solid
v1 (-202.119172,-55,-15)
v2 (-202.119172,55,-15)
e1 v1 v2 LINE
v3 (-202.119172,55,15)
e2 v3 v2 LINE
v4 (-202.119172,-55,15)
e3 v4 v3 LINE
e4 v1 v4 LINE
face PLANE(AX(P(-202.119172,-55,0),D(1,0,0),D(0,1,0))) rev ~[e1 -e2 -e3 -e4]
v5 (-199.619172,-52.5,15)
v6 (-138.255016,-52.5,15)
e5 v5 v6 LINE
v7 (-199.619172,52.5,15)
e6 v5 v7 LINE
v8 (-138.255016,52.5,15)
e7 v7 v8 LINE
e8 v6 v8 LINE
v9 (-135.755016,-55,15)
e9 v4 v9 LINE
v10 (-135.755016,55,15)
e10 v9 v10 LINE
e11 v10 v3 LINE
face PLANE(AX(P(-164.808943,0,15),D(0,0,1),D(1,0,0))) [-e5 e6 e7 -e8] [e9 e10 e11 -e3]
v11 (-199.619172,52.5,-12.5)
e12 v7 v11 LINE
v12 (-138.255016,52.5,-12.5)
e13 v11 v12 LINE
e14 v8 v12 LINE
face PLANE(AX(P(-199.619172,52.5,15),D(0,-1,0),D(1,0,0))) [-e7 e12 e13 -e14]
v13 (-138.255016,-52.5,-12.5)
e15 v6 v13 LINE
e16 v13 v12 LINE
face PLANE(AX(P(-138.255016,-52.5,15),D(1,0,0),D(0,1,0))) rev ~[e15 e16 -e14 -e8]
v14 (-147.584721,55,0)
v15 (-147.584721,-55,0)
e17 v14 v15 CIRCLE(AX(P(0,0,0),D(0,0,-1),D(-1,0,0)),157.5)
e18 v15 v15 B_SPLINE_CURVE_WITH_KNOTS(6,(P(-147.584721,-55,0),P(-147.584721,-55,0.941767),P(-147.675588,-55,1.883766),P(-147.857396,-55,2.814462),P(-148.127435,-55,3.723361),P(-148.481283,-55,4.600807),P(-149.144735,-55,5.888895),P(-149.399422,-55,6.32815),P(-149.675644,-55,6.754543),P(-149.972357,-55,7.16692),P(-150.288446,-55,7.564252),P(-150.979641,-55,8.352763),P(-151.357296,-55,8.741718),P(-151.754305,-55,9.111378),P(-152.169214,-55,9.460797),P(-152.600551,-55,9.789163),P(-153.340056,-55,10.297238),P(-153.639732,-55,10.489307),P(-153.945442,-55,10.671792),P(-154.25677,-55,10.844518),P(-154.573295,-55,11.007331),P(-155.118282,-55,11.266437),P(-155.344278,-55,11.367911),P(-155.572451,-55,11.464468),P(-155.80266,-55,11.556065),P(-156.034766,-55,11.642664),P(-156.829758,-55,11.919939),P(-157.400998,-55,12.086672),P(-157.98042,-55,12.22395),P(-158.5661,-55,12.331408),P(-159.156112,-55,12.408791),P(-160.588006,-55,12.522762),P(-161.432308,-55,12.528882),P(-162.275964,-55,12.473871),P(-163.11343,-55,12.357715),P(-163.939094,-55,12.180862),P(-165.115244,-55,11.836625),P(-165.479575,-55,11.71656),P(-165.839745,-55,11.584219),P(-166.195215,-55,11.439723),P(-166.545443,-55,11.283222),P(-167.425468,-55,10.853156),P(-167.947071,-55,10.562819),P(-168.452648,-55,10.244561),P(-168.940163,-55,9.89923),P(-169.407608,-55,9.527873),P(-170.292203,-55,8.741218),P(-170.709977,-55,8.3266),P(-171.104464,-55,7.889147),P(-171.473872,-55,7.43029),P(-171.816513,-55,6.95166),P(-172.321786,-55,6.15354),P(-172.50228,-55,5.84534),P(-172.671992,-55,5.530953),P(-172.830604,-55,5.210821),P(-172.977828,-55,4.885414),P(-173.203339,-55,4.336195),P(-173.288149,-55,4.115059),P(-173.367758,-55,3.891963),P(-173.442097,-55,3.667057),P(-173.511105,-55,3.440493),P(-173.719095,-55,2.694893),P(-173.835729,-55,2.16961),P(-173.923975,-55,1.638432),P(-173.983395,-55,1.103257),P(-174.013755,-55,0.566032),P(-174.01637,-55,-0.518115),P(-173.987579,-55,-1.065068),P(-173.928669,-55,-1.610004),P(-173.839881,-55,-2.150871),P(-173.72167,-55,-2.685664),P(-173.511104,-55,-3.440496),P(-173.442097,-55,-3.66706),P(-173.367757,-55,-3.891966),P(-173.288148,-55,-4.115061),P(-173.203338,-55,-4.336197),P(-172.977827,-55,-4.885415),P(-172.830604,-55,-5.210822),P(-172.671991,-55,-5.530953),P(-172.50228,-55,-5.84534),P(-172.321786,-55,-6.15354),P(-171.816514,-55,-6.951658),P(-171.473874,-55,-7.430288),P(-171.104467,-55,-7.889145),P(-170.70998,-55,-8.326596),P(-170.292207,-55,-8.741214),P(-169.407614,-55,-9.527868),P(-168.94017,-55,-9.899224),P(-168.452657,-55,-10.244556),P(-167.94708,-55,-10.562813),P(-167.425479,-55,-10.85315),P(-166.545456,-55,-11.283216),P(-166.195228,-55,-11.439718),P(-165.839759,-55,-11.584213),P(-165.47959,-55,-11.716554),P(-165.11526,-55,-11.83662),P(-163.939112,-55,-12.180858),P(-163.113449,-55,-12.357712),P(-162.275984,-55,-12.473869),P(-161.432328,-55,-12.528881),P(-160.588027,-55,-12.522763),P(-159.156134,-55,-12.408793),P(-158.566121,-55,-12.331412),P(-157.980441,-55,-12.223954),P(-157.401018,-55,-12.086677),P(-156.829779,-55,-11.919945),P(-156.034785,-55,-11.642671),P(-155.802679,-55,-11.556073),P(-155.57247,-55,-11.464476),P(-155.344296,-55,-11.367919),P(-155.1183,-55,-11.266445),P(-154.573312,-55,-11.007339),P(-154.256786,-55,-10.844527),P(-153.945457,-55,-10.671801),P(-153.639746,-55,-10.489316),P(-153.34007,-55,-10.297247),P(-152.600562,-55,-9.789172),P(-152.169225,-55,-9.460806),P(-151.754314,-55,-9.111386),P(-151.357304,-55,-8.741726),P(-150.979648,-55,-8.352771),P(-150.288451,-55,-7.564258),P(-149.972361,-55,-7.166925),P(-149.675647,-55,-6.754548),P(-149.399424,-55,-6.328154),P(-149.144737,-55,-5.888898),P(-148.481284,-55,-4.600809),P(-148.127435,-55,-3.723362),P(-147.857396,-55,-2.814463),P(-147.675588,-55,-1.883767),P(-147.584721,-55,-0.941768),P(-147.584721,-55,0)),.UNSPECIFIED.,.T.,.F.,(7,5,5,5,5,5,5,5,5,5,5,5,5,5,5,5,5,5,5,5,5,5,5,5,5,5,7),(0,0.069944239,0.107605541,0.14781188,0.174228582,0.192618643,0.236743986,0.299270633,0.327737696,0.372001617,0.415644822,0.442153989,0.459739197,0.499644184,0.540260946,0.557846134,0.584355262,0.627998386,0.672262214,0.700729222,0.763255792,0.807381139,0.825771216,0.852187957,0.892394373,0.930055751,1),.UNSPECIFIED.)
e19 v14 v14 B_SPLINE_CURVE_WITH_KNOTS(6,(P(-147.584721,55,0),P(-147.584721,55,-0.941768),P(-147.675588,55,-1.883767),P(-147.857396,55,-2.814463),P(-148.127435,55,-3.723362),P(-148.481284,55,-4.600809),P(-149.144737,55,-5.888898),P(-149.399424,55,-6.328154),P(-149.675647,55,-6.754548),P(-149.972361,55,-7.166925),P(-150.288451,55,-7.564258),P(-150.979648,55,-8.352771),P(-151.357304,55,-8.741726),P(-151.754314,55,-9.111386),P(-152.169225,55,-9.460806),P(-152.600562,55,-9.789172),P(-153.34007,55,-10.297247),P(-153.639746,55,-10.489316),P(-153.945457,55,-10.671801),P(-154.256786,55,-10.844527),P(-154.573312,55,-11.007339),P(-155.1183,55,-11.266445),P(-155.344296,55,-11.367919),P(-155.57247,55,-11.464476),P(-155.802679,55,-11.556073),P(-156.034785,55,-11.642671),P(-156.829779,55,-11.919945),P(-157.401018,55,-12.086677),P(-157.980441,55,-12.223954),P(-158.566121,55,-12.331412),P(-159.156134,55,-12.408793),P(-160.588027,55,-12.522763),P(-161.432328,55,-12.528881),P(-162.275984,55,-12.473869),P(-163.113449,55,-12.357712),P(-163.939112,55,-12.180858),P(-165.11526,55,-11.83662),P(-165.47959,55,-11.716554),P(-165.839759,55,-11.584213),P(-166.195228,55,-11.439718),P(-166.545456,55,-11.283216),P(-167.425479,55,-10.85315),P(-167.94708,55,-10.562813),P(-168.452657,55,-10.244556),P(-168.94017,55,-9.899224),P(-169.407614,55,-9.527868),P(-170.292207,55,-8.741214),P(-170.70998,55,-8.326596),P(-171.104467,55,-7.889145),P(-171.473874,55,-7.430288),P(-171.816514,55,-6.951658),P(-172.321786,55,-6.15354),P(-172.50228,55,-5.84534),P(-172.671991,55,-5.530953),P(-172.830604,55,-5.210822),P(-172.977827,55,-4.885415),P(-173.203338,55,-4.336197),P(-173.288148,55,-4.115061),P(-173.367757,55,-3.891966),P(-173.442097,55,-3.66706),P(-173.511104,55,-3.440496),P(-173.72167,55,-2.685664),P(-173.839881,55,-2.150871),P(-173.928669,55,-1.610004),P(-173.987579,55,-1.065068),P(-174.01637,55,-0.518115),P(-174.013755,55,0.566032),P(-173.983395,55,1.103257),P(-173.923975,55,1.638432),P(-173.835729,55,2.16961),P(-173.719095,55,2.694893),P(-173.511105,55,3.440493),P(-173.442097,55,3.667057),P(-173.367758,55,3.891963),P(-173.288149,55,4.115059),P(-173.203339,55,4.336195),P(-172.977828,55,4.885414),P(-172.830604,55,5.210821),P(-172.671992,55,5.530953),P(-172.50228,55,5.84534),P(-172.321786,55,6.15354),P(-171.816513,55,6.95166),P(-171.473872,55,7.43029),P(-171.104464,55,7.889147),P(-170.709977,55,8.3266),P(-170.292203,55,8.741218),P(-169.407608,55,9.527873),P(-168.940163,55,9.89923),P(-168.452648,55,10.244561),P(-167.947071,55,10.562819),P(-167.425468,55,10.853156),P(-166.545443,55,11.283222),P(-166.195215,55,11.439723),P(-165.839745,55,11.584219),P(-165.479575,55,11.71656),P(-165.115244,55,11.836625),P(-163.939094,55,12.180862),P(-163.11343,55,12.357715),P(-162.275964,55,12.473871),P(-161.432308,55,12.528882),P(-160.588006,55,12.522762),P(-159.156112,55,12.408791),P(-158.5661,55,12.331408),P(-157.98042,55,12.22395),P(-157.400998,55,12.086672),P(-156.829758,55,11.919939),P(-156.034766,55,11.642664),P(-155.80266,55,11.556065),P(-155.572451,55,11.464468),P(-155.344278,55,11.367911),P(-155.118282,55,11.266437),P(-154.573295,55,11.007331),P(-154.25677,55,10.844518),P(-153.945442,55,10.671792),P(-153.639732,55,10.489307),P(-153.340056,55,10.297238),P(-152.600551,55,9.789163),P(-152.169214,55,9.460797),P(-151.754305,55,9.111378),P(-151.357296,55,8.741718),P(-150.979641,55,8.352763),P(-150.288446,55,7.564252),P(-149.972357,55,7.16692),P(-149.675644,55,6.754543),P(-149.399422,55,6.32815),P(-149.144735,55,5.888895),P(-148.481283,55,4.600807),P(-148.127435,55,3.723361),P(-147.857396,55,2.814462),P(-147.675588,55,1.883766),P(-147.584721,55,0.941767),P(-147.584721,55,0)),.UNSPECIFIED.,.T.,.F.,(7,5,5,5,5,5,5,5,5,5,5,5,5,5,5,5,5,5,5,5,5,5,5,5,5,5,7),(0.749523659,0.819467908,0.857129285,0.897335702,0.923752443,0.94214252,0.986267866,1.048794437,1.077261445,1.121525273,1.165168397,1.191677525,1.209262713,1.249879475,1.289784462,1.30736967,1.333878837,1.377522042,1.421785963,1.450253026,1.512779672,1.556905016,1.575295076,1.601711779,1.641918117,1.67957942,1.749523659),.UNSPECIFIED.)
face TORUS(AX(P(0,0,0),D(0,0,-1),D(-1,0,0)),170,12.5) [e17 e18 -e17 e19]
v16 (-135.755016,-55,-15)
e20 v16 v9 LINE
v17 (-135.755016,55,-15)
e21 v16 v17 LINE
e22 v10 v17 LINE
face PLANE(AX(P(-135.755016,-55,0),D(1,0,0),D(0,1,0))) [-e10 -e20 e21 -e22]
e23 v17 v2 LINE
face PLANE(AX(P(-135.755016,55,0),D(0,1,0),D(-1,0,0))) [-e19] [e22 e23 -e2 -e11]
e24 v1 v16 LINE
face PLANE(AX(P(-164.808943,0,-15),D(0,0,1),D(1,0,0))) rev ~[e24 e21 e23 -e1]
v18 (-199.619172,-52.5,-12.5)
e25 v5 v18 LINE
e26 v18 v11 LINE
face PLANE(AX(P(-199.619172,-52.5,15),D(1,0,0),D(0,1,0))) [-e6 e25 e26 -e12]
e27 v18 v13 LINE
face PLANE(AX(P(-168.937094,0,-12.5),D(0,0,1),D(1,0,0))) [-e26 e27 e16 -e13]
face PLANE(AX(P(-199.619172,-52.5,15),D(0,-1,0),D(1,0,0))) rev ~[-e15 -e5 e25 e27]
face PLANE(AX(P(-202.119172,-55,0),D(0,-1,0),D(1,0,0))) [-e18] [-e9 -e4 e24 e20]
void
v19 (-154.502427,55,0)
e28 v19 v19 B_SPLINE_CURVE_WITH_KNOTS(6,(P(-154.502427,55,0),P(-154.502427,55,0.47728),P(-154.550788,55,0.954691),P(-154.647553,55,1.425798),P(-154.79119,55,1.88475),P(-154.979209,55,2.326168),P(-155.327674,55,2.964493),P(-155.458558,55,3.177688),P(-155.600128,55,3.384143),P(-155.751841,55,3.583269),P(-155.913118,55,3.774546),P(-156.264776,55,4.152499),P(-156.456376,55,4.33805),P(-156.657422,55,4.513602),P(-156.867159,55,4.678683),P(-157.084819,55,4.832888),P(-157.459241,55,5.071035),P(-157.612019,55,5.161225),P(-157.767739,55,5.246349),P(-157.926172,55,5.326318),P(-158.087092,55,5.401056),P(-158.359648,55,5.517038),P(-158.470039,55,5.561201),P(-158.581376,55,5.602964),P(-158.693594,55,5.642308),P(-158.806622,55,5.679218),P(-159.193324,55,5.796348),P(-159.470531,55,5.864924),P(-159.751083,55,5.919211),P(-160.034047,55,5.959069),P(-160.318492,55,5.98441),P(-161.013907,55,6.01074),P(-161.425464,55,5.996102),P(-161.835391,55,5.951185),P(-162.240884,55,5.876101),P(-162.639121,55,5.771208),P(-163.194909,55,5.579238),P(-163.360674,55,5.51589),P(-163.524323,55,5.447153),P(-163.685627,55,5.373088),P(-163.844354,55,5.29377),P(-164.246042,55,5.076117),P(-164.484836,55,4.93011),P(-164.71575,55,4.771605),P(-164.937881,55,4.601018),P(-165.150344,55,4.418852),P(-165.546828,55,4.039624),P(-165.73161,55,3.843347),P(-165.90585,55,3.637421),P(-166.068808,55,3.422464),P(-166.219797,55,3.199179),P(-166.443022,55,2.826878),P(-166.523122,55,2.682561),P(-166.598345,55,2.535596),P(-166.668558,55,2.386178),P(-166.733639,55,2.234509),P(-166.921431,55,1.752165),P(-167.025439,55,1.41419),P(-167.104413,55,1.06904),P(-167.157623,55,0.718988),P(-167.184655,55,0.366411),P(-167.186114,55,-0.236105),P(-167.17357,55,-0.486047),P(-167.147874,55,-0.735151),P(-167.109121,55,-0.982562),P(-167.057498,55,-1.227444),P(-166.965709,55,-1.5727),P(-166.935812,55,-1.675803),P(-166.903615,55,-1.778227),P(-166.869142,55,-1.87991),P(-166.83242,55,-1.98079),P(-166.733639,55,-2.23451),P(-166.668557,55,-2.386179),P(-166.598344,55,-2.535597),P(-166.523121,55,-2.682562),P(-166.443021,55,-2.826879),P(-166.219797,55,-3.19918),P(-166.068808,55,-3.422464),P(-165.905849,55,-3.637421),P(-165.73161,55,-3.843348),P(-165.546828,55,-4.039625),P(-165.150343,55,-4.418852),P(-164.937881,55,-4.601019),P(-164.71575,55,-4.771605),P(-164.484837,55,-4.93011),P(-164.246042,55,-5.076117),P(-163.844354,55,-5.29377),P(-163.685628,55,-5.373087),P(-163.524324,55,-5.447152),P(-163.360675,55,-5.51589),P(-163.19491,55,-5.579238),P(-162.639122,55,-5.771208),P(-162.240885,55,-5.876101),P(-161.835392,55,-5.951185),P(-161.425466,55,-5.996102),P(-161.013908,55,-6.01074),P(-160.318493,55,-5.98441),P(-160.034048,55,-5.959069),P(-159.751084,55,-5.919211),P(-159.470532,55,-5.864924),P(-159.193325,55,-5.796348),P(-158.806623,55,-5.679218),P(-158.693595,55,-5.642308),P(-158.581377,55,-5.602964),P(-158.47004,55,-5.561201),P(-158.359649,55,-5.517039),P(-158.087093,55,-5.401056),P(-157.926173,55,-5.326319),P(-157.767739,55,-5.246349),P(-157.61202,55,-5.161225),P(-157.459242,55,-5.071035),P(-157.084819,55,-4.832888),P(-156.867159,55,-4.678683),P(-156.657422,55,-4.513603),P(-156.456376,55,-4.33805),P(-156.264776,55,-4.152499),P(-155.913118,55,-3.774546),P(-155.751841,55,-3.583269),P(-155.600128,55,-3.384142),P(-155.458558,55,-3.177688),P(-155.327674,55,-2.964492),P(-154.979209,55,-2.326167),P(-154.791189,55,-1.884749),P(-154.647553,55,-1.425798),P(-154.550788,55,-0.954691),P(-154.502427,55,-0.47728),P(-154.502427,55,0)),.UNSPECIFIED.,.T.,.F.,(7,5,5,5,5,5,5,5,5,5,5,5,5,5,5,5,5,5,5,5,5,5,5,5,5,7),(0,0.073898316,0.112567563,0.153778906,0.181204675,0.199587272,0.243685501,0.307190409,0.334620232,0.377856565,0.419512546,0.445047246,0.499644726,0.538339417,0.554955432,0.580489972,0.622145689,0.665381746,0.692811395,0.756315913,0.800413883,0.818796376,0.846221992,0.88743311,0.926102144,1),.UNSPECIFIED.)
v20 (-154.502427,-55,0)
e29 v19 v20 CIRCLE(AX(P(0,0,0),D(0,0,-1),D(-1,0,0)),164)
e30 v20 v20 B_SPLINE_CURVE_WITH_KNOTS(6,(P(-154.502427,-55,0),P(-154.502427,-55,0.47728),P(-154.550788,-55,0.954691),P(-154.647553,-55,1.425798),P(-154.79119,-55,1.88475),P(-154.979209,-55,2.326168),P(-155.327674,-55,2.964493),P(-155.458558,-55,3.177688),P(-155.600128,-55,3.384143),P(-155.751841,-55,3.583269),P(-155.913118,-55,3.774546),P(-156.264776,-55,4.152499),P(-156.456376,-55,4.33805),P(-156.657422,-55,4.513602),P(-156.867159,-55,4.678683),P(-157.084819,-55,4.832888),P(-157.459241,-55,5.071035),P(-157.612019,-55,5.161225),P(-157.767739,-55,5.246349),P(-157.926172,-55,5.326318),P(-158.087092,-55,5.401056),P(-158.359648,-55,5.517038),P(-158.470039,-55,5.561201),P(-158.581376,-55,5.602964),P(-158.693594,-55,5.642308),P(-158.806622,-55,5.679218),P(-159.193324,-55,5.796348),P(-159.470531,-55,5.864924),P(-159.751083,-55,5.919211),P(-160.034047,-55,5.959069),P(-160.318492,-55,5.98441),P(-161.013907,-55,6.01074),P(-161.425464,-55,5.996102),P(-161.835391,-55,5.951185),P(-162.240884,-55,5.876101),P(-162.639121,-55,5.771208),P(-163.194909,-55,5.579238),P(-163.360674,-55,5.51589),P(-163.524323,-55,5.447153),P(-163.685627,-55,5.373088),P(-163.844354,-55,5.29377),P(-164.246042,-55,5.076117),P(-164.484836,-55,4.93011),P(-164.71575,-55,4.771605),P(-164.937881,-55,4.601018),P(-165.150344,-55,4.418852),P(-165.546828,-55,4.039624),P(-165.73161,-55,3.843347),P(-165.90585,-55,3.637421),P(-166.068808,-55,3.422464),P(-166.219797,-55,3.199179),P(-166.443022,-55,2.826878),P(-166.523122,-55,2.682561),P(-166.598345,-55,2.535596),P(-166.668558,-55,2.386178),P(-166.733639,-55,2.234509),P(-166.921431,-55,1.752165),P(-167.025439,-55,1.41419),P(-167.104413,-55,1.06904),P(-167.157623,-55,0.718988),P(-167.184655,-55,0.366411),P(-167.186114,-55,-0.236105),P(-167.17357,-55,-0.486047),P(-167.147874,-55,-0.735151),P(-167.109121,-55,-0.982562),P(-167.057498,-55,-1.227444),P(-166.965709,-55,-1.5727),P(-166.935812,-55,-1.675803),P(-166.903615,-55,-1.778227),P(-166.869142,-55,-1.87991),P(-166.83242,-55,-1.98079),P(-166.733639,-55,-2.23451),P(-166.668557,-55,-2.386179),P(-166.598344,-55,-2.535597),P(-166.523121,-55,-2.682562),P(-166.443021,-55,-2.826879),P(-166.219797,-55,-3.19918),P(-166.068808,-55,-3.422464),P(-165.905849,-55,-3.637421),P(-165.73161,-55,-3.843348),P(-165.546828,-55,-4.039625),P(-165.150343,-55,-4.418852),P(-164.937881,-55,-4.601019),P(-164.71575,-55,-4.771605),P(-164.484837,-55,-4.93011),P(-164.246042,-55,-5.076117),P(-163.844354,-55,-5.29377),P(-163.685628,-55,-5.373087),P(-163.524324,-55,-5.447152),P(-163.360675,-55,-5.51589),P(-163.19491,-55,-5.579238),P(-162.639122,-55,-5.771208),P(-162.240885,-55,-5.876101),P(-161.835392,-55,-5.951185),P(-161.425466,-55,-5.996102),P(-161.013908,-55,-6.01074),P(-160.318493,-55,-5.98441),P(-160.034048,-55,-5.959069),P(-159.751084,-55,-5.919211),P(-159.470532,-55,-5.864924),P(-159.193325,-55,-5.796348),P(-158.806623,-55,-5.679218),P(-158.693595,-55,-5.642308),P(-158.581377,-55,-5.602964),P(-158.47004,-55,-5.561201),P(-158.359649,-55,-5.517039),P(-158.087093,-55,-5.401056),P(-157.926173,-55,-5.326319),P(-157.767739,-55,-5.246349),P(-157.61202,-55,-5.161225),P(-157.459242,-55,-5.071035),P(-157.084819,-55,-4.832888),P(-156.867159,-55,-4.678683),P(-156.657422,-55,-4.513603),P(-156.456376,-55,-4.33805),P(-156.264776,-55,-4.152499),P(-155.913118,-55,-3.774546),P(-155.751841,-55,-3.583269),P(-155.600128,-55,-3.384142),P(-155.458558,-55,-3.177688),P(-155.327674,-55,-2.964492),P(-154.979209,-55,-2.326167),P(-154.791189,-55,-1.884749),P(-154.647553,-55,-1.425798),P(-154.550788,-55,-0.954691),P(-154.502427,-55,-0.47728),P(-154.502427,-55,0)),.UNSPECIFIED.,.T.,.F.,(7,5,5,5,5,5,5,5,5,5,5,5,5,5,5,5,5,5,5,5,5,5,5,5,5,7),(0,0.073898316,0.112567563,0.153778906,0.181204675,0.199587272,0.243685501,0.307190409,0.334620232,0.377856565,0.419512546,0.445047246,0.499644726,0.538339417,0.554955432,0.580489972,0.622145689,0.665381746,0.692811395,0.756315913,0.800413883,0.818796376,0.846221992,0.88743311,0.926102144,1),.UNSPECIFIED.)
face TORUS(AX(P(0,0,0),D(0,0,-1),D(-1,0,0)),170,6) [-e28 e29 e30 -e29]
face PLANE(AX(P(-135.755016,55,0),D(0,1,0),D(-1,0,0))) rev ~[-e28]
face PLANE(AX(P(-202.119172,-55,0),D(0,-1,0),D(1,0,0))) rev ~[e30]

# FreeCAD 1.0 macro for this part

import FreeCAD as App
import Part
import Sketcher
Q = App.Units.Quantity


def add_polygon(sketch, points):
    """Adds a closed chain of lines whose ends are joined by coincident constraints."""
    first, n = sketch.GeometryCount, len(points)
    for a, b in zip(points, points[1:] + points[:1]):
        sketch.addGeometry(Part.LineSegment(App.Vector(*a, 0), App.Vector(*b, 0)), False)
    for i in range(n):
        sketch.addConstraint(Sketcher.Constraint("Coincident", first + i, 2, first + (i + 1) % n, 1))

doc = App.newDocument("Part")
body = doc.addObject("PartDesign::Body", "Body")

# Sketch on XZ plane
sketch1 = body.newObject("Sketcher::SketchObject", "Sketch")
sketch1.AttachmentSupport = (doc.getObject("XZ_Plane"), [""])
sketch1.MapMode = "FlatFace"
sketch1.addGeometry([
    Part.Circle(App.Vector(-170, 0, 0), App.Vector(0, 0, 1), 12),
    Part.Circle(App.Vector(-170, 0, 0), App.Vector(0, 0, 1), 6),
], False)
sketch1.addConstraint([
    Sketcher.Constraint("Coincident", 1, 3, 0, 3),
    Sketcher.Constraint("PointOnObject", 0, 3, -1),
    Sketcher.Constraint("Diameter", 0, Q("25 mm")),
    Sketcher.Constraint("Diameter", 1, Q("12 mm")),
    Sketcher.Constraint("DistanceX", 0, 3, -1, 1, Q("170 mm")),
])
revolution = body.newObject("PartDesign::Revolution", "Revolution")
revolution.Profile = sketch1
revolution.ReferenceAxis = (sketch1, ["V_Axis"])
revolution.Angle = 360

# Sketch on XY plane
sketch2 = body.newObject("Sketcher::SketchObject", "Sketch001")
sketch2.AttachmentSupport = (doc.getObject("XY_Plane"), [""])
sketch2.MapMode = "FlatFace"
add_polygon(sketch2, [(-185, 55), (-185, -55), (-135, -55), (-135, 55)])  # lines 0-3
add_polygon(sketch2, [(-202, 55), (-202, -55), (-185, -55), (-185, 55)])  # lines 4-7
sketch2.addConstraint([
    Sketcher.Constraint("Vertical", 0),
    Sketcher.Constraint("Horizontal", 1),
    Sketcher.Constraint("Vertical", 2),
    Sketcher.Constraint("Horizontal", 3),
    Sketcher.Constraint("Vertical", 4),
    Sketcher.Constraint("Horizontal", 5),
    Sketcher.Constraint("Vertical", 6),
    Sketcher.Constraint("Horizontal", 7),
    Sketcher.Constraint("Coincident", 5, 2, 0, 2),
    Sketcher.Constraint("Horizontal", 2, 2, 6, 2),
    Sketcher.Constraint("DistanceY", 0, 2, 0, 1, Q("110 mm")),
    Sketcher.Constraint("DistanceY", 0, 2, -1, 1, Q("55 mm")),
    Sketcher.Constraint("DistanceX", 1, 1, 1, 2, Q("49.479202 mm")),
    Sketcher.Constraint("DistanceX", 5, 1, 5, 2, Q("17.295763 mm")),
    Sketcher.Constraint("DistanceX", 0, 2, -1, 1, Q("184.823409 mm")),
])
pocket1 = body.newObject("PartDesign::Pocket", "Pocket")
pocket1.Profile = sketch2
pocket1.Length = 25
pocket1.Midplane = True

# Sketch on XY plane
sketch3 = body.newObject("Sketcher::SketchObject", "Sketch002")
sketch3.AttachmentSupport = (doc.getObject("XY_Plane"), [""])
sketch3.MapMode = "FlatFace"
add_polygon(sketch3, [(-202, 55), (-202, -55), (-136, -55), (-136, 55)])  # lines 0-3
sketch3.addConstraint([
    Sketcher.Constraint("Vertical", 0),
    Sketcher.Constraint("Horizontal", 1),
    Sketcher.Constraint("Vertical", 2),
    Sketcher.Constraint("Horizontal", 3),
    Sketcher.Constraint("DistanceY", 0, 2, 0, 1, Q("110 mm")),
    Sketcher.Constraint("DistanceY", 0, 2, -1, 1, Q("55 mm")),
    Sketcher.Constraint("DistanceX", 1, 1, 1, 2, Q("66.364156 mm")),
    Sketcher.Constraint("DistanceX", 0, 2, -1, 1, Q("202.119172 mm")),
])
pad1 = body.newObject("PartDesign::Pad", "Pad")
pad1.Profile = sketch3
pad1.Length = 30
pad1.Midplane = True

# Sketch on XY plane
sketch4 = body.newObject("Sketcher::SketchObject", "Sketch003")
sketch4.AttachmentSupport = (doc.getObject("XY_Plane"), [""])
sketch4.MapMode = "FlatFace"
sketch4.AttachmentOffset = App.Placement(App.Vector(0, 0, 15), App.Rotation())
add_polygon(sketch4, [(-200, 52), (-200, -52), (-138, -52), (-138, 52)])  # lines 0-3
sketch4.addConstraint([
    Sketcher.Constraint("Vertical", 0),
    Sketcher.Constraint("Horizontal", 1),
    Sketcher.Constraint("Vertical", 2),
    Sketcher.Constraint("Horizontal", 3),
    Sketcher.Constraint("DistanceY", 0, 2, 0, 1, Q("105 mm")),
    Sketcher.Constraint("DistanceY", 0, 2, -1, 1, Q("52.5 mm")),
    Sketcher.Constraint("DistanceX", 1, 1, 1, 2, Q("61.364156 mm")),
    Sketcher.Constraint("DistanceX", 0, 2, -1, 1, Q("199.619172 mm")),
])
pocket2 = body.newObject("PartDesign::Pocket", "Pocket001")
pocket2.Profile = sketch4
pocket2.Length = 27.5

doc.recompute()
